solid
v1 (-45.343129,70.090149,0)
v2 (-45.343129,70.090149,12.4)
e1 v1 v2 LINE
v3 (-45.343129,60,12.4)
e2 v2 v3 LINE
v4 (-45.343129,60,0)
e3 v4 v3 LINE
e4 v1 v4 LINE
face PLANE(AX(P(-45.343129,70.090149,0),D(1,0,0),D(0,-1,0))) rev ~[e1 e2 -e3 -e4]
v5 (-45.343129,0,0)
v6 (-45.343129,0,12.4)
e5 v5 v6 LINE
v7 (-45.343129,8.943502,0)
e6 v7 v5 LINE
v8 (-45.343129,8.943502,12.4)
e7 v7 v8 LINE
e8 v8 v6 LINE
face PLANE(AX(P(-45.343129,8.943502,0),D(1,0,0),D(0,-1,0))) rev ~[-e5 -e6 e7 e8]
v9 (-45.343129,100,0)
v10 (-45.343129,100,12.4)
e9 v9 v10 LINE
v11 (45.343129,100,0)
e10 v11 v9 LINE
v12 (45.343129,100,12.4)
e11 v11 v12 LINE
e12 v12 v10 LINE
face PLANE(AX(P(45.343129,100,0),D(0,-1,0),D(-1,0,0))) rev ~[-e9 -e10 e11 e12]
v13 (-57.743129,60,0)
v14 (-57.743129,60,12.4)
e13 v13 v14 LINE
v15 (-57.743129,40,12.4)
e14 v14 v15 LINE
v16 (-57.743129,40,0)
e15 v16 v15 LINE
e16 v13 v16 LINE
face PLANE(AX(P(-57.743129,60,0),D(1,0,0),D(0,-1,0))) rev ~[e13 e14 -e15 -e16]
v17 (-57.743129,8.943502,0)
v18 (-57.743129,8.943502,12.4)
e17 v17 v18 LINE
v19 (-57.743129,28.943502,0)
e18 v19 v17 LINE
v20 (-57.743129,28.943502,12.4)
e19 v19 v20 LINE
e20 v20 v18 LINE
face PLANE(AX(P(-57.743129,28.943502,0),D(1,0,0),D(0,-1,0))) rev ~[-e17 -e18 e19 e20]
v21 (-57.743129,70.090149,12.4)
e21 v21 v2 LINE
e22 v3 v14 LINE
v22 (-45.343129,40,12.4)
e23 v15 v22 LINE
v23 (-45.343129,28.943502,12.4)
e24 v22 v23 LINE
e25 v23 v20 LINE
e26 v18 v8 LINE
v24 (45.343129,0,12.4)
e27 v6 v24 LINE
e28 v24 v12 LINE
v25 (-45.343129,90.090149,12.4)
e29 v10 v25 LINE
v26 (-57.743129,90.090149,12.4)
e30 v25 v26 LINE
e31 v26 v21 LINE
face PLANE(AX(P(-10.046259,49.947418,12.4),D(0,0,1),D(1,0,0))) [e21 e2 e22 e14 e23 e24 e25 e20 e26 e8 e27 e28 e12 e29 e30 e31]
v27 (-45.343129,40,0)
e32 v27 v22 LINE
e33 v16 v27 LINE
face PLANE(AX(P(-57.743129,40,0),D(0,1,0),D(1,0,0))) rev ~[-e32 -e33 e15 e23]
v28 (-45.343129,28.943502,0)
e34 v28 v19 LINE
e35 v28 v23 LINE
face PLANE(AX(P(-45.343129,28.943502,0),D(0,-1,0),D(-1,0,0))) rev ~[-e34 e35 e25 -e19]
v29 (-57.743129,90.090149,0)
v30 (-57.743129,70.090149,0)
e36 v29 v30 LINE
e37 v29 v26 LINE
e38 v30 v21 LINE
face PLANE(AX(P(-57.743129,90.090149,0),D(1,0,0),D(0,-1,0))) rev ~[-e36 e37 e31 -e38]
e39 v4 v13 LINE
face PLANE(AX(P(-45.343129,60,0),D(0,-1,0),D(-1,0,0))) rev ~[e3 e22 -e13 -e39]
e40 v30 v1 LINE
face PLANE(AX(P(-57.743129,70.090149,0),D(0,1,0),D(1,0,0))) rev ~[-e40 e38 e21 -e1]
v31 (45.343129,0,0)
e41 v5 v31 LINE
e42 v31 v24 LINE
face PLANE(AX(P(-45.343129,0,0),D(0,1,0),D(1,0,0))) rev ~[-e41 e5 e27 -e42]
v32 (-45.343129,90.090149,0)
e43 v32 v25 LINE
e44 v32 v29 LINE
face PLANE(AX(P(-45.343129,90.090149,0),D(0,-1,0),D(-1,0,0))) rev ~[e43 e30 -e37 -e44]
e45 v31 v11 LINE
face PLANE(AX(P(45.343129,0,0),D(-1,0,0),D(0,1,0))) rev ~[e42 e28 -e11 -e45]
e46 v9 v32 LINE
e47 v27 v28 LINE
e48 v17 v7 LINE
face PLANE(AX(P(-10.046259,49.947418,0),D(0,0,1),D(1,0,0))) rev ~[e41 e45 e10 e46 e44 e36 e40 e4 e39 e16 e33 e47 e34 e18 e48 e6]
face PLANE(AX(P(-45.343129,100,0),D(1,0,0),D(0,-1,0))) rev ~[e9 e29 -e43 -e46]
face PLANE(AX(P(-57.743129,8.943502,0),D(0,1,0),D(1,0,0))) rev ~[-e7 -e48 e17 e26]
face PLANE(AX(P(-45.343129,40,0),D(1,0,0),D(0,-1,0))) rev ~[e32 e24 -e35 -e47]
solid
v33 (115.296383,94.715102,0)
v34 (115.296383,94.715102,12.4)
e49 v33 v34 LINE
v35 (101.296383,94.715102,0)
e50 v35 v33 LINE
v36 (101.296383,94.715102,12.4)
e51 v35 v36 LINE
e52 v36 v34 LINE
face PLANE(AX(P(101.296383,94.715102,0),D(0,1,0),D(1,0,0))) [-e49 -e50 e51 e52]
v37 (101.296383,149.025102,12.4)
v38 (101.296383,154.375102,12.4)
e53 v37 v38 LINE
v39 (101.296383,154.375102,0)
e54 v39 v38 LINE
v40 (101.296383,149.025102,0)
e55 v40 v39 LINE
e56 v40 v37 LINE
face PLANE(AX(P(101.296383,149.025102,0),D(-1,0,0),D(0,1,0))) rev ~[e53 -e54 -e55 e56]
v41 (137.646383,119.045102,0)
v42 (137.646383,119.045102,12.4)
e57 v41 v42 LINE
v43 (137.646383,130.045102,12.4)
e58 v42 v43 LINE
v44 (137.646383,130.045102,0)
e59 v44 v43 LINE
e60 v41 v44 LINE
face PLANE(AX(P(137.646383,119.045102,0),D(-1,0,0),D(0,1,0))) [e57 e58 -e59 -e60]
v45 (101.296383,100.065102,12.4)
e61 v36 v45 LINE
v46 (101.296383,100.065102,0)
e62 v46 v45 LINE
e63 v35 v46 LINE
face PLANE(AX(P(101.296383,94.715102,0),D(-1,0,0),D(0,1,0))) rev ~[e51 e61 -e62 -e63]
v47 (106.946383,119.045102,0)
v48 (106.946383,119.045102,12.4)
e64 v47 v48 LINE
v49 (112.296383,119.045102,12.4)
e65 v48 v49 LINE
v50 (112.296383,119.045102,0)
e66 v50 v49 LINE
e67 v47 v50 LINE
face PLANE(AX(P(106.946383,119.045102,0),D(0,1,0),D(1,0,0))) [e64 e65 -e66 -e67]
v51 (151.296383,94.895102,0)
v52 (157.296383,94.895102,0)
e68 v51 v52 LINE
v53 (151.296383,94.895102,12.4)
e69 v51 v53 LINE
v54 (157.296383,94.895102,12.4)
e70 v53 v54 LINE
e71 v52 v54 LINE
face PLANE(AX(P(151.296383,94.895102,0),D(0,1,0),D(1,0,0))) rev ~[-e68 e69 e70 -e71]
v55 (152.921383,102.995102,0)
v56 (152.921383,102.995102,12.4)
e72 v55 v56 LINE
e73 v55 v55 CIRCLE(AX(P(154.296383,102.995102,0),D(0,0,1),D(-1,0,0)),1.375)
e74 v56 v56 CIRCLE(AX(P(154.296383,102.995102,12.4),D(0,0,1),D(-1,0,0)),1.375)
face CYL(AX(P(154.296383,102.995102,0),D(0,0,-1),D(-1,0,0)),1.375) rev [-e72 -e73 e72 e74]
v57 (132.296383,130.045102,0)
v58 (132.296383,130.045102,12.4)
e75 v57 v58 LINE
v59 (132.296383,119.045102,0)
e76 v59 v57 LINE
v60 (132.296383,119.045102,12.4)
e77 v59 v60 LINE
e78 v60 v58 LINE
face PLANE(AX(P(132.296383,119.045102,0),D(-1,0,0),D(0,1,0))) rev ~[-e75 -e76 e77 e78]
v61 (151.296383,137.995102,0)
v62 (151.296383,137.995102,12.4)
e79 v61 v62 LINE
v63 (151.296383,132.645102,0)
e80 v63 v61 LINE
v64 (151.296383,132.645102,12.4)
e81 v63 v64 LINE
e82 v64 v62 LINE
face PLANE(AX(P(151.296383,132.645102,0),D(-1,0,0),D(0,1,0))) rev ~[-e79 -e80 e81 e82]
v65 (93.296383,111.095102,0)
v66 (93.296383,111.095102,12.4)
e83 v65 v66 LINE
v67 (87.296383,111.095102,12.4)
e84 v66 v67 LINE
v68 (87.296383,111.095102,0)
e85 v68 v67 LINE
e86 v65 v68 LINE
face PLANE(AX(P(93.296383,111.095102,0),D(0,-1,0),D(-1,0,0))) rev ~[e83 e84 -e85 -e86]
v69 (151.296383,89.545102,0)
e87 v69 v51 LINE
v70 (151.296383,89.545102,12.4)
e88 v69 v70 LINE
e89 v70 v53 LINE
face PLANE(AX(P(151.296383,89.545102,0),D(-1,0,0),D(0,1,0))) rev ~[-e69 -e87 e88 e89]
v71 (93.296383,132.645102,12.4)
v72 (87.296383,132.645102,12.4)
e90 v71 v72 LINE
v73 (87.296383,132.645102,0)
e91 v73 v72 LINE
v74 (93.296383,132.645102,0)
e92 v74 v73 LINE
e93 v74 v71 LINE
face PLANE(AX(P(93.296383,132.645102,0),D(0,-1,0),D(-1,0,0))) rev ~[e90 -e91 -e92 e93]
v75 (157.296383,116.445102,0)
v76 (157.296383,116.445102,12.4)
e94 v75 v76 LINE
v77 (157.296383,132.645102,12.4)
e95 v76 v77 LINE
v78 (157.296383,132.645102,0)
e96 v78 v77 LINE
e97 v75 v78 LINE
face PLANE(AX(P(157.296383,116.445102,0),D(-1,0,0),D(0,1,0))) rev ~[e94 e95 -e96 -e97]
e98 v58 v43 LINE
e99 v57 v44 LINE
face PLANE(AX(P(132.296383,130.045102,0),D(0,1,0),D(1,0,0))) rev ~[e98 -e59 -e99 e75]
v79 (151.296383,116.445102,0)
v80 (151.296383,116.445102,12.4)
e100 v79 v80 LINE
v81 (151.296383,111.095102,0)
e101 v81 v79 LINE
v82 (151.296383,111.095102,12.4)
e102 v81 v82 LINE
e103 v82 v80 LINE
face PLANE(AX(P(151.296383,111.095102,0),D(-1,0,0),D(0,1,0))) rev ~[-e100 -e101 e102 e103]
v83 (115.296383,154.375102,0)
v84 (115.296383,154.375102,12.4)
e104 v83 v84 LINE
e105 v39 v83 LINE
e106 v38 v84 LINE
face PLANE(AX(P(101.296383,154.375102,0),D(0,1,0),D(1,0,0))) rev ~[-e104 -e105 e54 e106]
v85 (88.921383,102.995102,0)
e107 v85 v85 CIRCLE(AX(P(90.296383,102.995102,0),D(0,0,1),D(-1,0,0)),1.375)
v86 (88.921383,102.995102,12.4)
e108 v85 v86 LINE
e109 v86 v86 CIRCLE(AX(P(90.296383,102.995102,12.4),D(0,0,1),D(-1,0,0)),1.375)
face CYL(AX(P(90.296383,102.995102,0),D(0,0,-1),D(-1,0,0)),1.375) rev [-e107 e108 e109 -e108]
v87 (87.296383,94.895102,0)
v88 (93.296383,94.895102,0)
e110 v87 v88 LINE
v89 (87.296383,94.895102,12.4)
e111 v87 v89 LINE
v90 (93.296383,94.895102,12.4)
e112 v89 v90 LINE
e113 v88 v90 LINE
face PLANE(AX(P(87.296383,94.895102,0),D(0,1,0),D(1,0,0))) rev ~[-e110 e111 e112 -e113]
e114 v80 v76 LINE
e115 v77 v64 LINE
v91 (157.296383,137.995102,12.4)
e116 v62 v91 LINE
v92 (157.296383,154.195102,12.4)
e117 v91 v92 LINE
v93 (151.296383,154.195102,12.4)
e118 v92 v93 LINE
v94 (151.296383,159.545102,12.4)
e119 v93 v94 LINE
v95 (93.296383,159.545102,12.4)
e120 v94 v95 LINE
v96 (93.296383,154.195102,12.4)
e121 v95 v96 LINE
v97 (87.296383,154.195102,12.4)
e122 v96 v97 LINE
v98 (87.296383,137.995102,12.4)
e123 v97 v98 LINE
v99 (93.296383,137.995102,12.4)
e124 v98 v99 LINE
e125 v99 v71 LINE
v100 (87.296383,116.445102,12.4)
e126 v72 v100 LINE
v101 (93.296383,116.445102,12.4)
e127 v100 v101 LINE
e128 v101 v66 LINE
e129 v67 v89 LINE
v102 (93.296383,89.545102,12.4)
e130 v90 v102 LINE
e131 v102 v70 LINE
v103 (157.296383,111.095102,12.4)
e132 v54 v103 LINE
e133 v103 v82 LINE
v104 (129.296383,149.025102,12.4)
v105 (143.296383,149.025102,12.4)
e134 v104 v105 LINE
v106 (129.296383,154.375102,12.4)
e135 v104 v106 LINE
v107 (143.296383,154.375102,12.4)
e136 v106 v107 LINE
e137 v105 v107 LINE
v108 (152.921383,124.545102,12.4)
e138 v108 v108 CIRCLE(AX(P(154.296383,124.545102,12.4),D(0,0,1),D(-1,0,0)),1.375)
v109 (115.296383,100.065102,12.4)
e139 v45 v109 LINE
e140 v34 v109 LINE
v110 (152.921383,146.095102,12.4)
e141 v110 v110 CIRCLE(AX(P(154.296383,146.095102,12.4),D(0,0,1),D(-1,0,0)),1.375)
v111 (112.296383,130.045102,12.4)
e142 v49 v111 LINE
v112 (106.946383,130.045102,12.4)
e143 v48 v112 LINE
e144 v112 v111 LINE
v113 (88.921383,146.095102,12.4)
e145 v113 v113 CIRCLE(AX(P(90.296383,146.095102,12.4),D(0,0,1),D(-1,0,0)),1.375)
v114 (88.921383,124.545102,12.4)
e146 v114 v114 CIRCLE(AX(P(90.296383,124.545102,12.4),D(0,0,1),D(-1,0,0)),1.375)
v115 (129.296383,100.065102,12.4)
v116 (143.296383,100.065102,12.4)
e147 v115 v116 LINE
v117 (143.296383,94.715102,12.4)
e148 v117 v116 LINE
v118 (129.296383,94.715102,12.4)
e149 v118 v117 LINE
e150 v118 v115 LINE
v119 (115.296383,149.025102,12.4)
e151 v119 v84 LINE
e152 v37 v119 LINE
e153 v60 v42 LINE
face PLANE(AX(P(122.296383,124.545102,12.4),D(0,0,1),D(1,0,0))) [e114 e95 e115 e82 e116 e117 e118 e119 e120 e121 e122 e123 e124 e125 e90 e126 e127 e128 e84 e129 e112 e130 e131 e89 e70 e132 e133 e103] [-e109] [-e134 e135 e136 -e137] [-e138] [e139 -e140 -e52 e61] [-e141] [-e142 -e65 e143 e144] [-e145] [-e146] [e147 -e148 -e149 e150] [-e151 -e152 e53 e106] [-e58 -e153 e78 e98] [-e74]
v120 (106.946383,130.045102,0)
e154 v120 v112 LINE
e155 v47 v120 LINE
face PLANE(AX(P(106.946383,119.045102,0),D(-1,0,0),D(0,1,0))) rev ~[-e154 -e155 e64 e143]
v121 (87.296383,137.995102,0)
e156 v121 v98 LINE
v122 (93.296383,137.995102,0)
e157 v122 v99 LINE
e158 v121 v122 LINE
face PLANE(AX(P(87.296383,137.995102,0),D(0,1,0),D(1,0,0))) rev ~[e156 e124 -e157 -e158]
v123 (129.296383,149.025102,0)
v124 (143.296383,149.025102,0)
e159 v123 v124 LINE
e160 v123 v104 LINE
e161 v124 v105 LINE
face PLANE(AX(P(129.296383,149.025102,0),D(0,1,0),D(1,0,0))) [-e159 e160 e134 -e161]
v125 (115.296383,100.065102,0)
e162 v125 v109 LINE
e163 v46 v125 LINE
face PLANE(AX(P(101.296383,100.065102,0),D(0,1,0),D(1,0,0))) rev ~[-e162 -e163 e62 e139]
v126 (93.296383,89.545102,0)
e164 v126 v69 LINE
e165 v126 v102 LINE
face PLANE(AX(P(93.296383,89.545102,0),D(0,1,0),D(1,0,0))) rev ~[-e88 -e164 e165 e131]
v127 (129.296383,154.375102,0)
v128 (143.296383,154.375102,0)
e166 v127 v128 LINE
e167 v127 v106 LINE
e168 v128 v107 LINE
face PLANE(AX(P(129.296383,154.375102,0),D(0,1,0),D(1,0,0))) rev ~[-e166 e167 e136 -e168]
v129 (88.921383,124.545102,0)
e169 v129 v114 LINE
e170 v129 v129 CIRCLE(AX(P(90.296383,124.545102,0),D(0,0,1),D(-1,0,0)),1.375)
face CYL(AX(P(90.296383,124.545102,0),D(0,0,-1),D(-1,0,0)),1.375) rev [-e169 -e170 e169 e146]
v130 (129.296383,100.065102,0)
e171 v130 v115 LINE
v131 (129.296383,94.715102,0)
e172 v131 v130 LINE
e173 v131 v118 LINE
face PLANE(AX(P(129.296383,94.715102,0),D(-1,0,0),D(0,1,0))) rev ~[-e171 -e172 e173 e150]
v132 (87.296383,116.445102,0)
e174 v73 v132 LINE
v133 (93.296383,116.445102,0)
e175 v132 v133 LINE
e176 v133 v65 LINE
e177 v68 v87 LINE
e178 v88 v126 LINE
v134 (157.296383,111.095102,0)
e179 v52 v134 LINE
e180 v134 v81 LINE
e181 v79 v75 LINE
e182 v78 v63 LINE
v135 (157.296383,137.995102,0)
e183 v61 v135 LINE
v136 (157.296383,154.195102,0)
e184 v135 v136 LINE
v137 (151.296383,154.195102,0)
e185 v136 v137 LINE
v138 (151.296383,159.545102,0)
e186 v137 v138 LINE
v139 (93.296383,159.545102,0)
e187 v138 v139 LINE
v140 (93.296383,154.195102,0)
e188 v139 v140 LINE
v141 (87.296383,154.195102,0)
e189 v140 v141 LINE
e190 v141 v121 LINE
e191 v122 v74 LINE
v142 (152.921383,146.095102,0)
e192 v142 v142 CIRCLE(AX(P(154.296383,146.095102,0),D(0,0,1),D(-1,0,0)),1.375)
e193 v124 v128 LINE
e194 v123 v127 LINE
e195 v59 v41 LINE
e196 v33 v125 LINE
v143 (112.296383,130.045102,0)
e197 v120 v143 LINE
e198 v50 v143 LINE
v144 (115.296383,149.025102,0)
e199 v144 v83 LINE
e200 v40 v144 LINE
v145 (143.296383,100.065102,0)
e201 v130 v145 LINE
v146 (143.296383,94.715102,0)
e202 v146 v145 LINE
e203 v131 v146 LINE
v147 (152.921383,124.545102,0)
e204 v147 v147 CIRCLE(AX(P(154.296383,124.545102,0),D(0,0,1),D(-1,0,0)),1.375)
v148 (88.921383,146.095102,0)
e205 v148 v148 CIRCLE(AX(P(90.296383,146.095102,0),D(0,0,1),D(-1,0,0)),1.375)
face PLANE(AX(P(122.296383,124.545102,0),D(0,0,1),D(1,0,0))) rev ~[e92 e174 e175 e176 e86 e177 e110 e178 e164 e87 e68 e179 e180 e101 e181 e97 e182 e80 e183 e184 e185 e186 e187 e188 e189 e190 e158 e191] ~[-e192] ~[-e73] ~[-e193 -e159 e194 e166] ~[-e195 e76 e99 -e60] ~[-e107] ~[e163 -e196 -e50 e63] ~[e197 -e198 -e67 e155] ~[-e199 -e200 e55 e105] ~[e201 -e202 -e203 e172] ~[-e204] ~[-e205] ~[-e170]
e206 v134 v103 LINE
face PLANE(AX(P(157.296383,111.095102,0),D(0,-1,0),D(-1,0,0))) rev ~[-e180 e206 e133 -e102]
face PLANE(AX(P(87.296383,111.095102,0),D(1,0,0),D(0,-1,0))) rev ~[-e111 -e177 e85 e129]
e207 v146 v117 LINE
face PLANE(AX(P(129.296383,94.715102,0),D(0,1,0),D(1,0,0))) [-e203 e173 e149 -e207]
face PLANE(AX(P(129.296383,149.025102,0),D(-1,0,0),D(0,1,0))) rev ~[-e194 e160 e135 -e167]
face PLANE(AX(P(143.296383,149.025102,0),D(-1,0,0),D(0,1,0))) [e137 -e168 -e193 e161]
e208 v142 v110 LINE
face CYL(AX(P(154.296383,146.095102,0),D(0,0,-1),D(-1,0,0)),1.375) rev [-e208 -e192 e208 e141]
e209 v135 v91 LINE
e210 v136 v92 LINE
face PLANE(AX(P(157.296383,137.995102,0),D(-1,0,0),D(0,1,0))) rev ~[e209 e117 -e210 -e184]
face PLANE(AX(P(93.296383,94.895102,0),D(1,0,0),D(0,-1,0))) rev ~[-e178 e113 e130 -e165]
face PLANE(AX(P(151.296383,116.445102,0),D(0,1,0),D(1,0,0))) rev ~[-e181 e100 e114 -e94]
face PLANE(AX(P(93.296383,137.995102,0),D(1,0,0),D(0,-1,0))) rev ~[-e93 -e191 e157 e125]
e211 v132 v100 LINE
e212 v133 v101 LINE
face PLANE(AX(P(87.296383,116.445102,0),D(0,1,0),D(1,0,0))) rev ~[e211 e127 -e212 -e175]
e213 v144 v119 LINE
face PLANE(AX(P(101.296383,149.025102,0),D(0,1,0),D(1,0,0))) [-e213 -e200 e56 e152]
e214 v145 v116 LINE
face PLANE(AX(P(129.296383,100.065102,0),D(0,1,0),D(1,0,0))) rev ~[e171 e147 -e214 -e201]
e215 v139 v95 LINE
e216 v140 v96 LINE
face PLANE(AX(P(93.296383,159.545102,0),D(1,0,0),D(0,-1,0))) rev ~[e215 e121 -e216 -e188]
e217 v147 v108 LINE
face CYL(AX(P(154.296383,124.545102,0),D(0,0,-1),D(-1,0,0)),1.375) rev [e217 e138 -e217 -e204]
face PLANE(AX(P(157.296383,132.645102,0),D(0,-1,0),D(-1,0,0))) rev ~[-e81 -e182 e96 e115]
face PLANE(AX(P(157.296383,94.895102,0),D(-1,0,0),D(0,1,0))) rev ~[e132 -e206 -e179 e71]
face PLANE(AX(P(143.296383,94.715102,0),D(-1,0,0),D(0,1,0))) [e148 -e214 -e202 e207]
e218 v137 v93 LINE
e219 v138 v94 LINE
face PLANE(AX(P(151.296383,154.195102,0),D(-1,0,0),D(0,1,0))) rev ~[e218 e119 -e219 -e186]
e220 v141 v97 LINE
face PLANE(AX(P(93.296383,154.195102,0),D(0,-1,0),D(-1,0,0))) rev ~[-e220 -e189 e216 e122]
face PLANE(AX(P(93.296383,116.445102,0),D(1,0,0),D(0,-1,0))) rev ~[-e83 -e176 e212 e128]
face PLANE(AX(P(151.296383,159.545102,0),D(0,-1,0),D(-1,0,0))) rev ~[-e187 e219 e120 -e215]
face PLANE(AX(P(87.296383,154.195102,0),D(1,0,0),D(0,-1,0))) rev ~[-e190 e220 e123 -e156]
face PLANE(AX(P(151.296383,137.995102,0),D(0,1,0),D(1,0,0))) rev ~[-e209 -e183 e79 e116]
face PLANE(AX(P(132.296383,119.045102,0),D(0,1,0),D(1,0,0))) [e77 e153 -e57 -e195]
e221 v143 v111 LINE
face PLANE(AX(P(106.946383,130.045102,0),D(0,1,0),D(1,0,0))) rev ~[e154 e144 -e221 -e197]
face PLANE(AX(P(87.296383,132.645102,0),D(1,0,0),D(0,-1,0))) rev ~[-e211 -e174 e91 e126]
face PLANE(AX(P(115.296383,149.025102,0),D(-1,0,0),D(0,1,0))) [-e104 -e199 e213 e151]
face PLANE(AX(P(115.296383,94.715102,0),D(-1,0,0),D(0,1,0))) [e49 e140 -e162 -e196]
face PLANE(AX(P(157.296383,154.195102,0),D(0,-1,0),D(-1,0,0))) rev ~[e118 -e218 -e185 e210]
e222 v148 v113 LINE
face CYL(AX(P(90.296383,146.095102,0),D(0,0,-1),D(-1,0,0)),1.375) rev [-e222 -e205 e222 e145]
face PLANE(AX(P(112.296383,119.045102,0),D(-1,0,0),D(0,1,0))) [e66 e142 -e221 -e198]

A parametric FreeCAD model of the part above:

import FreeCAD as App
import Part
import Sketcher

doc = App.newDocument("Part")
params = doc.addObject("Spreadsheet::Sheet", "Params")
for row, (alias, value) in enumerate([
    ("sketch1_diameter", "2.75 mm"),
    ("sketch1_width", "58 mm"),
    ("sketch1_width2", "6 mm"),
    ("sketch1_width3", "14 mm"),
    ("sketch1_height", "11 mm"),
    ("pad1_length", "12.4 mm"),
    ("sketch2_height", "20 mm"),
    ("sketch2_height2", "100 mm"),
    ("sketch2_width", "12.4 mm"),
    ("pad2_length", "12.4 mm"),
], start=1):
    params.set(f"A{row}", alias)
    params.set(f"B{row}", "=" + value)
    params.setAlias(f"B{row}", alias)

body = doc.addObject("PartDesign::Body", "Body")

# Sketch on XY plane
sketch1 = doc.addObject("Sketcher::SketchObject", "Sketch")
body.addObject(sketch1)
sketch1.AttachmentSupport = (doc.XY_Plane, [""])
sketch1.MapMode = "FlatFace"
sketch1.addGeometry(Part.LineSegment(App.Vector(93.3, 89.5, 0), App.Vector(151.3, 89.5, 0)), False)
sketch1.addGeometry(Part.LineSegment(App.Vector(151.3, 89.5, 0), App.Vector(151.3, 94.9, 0)), False)
sketch1.addGeometry(Part.LineSegment(App.Vector(151.3, 94.9, 0), App.Vector(157.3, 94.9, 0)), False)
sketch1.addGeometry(Part.LineSegment(App.Vector(157.3, 94.9, 0), App.Vector(157.3, 111.1, 0)), False)
sketch1.addGeometry(Part.LineSegment(App.Vector(157.3, 111.1, 0), App.Vector(151.3, 111.1, 0)), False)
sketch1.addGeometry(Part.LineSegment(App.Vector(151.3, 111.1, 0), App.Vector(151.3, 116.4, 0)), False)
sketch1.addGeometry(Part.LineSegment(App.Vector(151.3, 116.4, 0), App.Vector(157.3, 116.4, 0)), False)
sketch1.addGeometry(Part.LineSegment(App.Vector(157.3, 116.4, 0), App.Vector(157.3, 132.6, 0)), False)
sketch1.addGeometry(Part.LineSegment(App.Vector(157.3, 132.6, 0), App.Vector(151.3, 132.6, 0)), False)
sketch1.addGeometry(Part.LineSegment(App.Vector(151.3, 132.6, 0), App.Vector(151.3, 138, 0)), False)
sketch1.addGeometry(Part.LineSegment(App.Vector(151.3, 138, 0), App.Vector(157.3, 138, 0)), False)
sketch1.addGeometry(Part.LineSegment(App.Vector(157.3, 138, 0), App.Vector(157.3, 154.2, 0)), False)
sketch1.addGeometry(Part.LineSegment(App.Vector(157.3, 154.2, 0), App.Vector(151.3, 154.2, 0)), False)
sketch1.addGeometry(Part.LineSegment(App.Vector(151.3, 154.2, 0), App.Vector(151.3, 159.5, 0)), False)
sketch1.addGeometry(Part.LineSegment(App.Vector(151.3, 159.5, 0), App.Vector(93.3, 159.5, 0)), False)
sketch1.addGeometry(Part.LineSegment(App.Vector(93.3, 159.5, 0), App.Vector(93.3, 154.2, 0)), False)
sketch1.addGeometry(Part.LineSegment(App.Vector(93.3, 154.2, 0), App.Vector(87.3, 154.2, 0)), False)
sketch1.addGeometry(Part.LineSegment(App.Vector(87.3, 154.2, 0), App.Vector(87.3, 138, 0)), False)
sketch1.addGeometry(Part.LineSegment(App.Vector(87.3, 138, 0), App.Vector(93.3, 138, 0)), False)
sketch1.addGeometry(Part.LineSegment(App.Vector(93.3, 138, 0), App.Vector(93.3, 132.6, 0)), False)
sketch1.addGeometry(Part.LineSegment(App.Vector(93.3, 132.6, 0), App.Vector(87.3, 132.6, 0)), False)
sketch1.addGeometry(Part.LineSegment(App.Vector(87.3, 132.6, 0), App.Vector(87.3, 116.4, 0)), False)
sketch1.addGeometry(Part.LineSegment(App.Vector(87.3, 116.4, 0), App.Vector(93.3, 116.4, 0)), False)
sketch1.addGeometry(Part.LineSegment(App.Vector(93.3, 116.4, 0), App.Vector(93.3, 111.1, 0)), False)
sketch1.addGeometry(Part.LineSegment(App.Vector(93.3, 111.1, 0), App.Vector(87.3, 111.1, 0)), False)
sketch1.addGeometry(Part.LineSegment(App.Vector(87.3, 111.1, 0), App.Vector(87.3, 94.9, 0)), False)
sketch1.addGeometry(Part.LineSegment(App.Vector(87.3, 94.9, 0), App.Vector(93.3, 94.9, 0)), False)
sketch1.addGeometry(Part.LineSegment(App.Vector(93.3, 94.9, 0), App.Vector(93.3, 89.5, 0)), False)
sketch1.addGeometry(Part.Circle(App.Vector(90.3, 103, 0), App.Vector(0, 0, 1), 1.4), False)
sketch1.addGeometry(Part.LineSegment(App.Vector(115.3, 94.7, 0), App.Vector(101.3, 94.7, 0)), False)
sketch1.addGeometry(Part.LineSegment(App.Vector(101.3, 94.7, 0), App.Vector(101.3, 100.1, 0)), False)
sketch1.addGeometry(Part.LineSegment(App.Vector(101.3, 100.1, 0), App.Vector(115.3, 100.1, 0)), False)
sketch1.addGeometry(Part.LineSegment(App.Vector(115.3, 100.1, 0), App.Vector(115.3, 94.7, 0)), False)
sketch1.addGeometry(Part.Circle(App.Vector(90.3, 124.5, 0), App.Vector(0, 0, 1), 1.4), False)
sketch1.addGeometry(Part.LineSegment(App.Vector(112.3, 119, 0), App.Vector(106.9, 119, 0)), False)
sketch1.addGeometry(Part.LineSegment(App.Vector(106.9, 119, 0), App.Vector(106.9, 130, 0)), False)
sketch1.addGeometry(Part.LineSegment(App.Vector(106.9, 130, 0), App.Vector(112.3, 130, 0)), False)
sketch1.addGeometry(Part.LineSegment(App.Vector(112.3, 130, 0), App.Vector(112.3, 119, 0)), False)
sketch1.addGeometry(Part.LineSegment(App.Vector(143.3, 94.7, 0), App.Vector(129.3, 94.7, 0)), False)
sketch1.addGeometry(Part.LineSegment(App.Vector(129.3, 94.7, 0), App.Vector(129.3, 100.1, 0)), False)
sketch1.addGeometry(Part.LineSegment(App.Vector(129.3, 100.1, 0), App.Vector(143.3, 100.1, 0)), False)
sketch1.addGeometry(Part.LineSegment(App.Vector(143.3, 100.1, 0), App.Vector(143.3, 94.7, 0)), False)
sketch1.addGeometry(Part.Circle(App.Vector(154.3, 103, 0), App.Vector(0, 0, 1), 1.4), False)
sketch1.addGeometry(Part.LineSegment(App.Vector(137.6, 119, 0), App.Vector(132.3, 119, 0)), False)
sketch1.addGeometry(Part.LineSegment(App.Vector(132.3, 119, 0), App.Vector(132.3, 130, 0)), False)
sketch1.addGeometry(Part.LineSegment(App.Vector(132.3, 130, 0), App.Vector(137.6, 130, 0)), False)
sketch1.addGeometry(Part.LineSegment(App.Vector(137.6, 130, 0), App.Vector(137.6, 119, 0)), False)
sketch1.addGeometry(Part.Circle(App.Vector(154.3, 124.5, 0), App.Vector(0, 0, 1), 1.4), False)
sketch1.addGeometry(Part.Circle(App.Vector(90.3, 146.1, 0), App.Vector(0, 0, 1), 1.4), False)
sketch1.addGeometry(Part.LineSegment(App.Vector(115.3, 149, 0), App.Vector(101.3, 149, 0)), False)
sketch1.addGeometry(Part.LineSegment(App.Vector(101.3, 149, 0), App.Vector(101.3, 154.4, 0)), False)
sketch1.addGeometry(Part.LineSegment(App.Vector(101.3, 154.4, 0), App.Vector(115.3, 154.4, 0)), False)
sketch1.addGeometry(Part.LineSegment(App.Vector(115.3, 154.4, 0), App.Vector(115.3, 149, 0)), False)
sketch1.addGeometry(Part.LineSegment(App.Vector(143.3, 149, 0), App.Vector(129.3, 149, 0)), False)
sketch1.addGeometry(Part.LineSegment(App.Vector(129.3, 149, 0), App.Vector(129.3, 154.4, 0)), False)
sketch1.addGeometry(Part.LineSegment(App.Vector(129.3, 154.4, 0), App.Vector(143.3, 154.4, 0)), False)
sketch1.addGeometry(Part.LineSegment(App.Vector(143.3, 154.4, 0), App.Vector(143.3, 149, 0)), False)
sketch1.addGeometry(Part.Circle(App.Vector(154.3, 146.1, 0), App.Vector(0, 0, 1), 1.4), False)
sketch1.addConstraint(Sketcher.Constraint("Coincident", 0, 2, 1, 1))
sketch1.addConstraint(Sketcher.Constraint("Coincident", 1, 2, 2, 1))
sketch1.addConstraint(Sketcher.Constraint("Coincident", 2, 2, 3, 1))
sketch1.addConstraint(Sketcher.Constraint("Coincident", 3, 2, 4, 1))
sketch1.addConstraint(Sketcher.Constraint("Coincident", 4, 2, 5, 1))
sketch1.addConstraint(Sketcher.Constraint("Coincident", 5, 2, 6, 1))
sketch1.addConstraint(Sketcher.Constraint("Coincident", 6, 2, 7, 1))
sketch1.addConstraint(Sketcher.Constraint("Coincident", 7, 2, 8, 1))
sketch1.addConstraint(Sketcher.Constraint("Coincident", 8, 2, 9, 1))
sketch1.addConstraint(Sketcher.Constraint("Coincident", 9, 2, 10, 1))
sketch1.addConstraint(Sketcher.Constraint("Coincident", 10, 2, 11, 1))
sketch1.addConstraint(Sketcher.Constraint("Coincident", 11, 2, 12, 1))
sketch1.addConstraint(Sketcher.Constraint("Coincident", 12, 2, 13, 1))
sketch1.addConstraint(Sketcher.Constraint("Coincident", 13, 2, 14, 1))
sketch1.addConstraint(Sketcher.Constraint("Coincident", 14, 2, 15, 1))
sketch1.addConstraint(Sketcher.Constraint("Coincident", 15, 2, 16, 1))
sketch1.addConstraint(Sketcher.Constraint("Coincident", 16, 2, 17, 1))
sketch1.addConstraint(Sketcher.Constraint("Coincident", 17, 2, 18, 1))
sketch1.addConstraint(Sketcher.Constraint("Coincident", 18, 2, 19, 1))
sketch1.addConstraint(Sketcher.Constraint("Coincident", 19, 2, 20, 1))
sketch1.addConstraint(Sketcher.Constraint("Coincident", 20, 2, 21, 1))
sketch1.addConstraint(Sketcher.Constraint("Coincident", 21, 2, 22, 1))
sketch1.addConstraint(Sketcher.Constraint("Coincident", 22, 2, 23, 1))
sketch1.addConstraint(Sketcher.Constraint("Coincident", 23, 2, 24, 1))
sketch1.addConstraint(Sketcher.Constraint("Coincident", 24, 2, 25, 1))
sketch1.addConstraint(Sketcher.Constraint("Coincident", 25, 2, 26, 1))
sketch1.addConstraint(Sketcher.Constraint("Coincident", 26, 2, 27, 1))
sketch1.addConstraint(Sketcher.Constraint("Coincident", 27, 2, 0, 1))
sketch1.addConstraint(Sketcher.Constraint("Coincident", 29, 2, 30, 1))
sketch1.addConstraint(Sketcher.Constraint("Coincident", 30, 2, 31, 1))
sketch1.addConstraint(Sketcher.Constraint("Coincident", 31, 2, 32, 1))
sketch1.addConstraint(Sketcher.Constraint("Coincident", 32, 2, 29, 1))
sketch1.addConstraint(Sketcher.Constraint("Coincident", 34, 2, 35, 1))
sketch1.addConstraint(Sketcher.Constraint("Coincident", 35, 2, 36, 1))
sketch1.addConstraint(Sketcher.Constraint("Coincident", 36, 2, 37, 1))
sketch1.addConstraint(Sketcher.Constraint("Coincident", 37, 2, 34, 1))
sketch1.addConstraint(Sketcher.Constraint("Coincident", 38, 2, 39, 1))
sketch1.addConstraint(Sketcher.Constraint("Coincident", 39, 2, 40, 1))
sketch1.addConstraint(Sketcher.Constraint("Coincident", 40, 2, 41, 1))
sketch1.addConstraint(Sketcher.Constraint("Coincident", 41, 2, 38, 1))
sketch1.addConstraint(Sketcher.Constraint("Coincident", 43, 2, 44, 1))
sketch1.addConstraint(Sketcher.Constraint("Coincident", 44, 2, 45, 1))
sketch1.addConstraint(Sketcher.Constraint("Coincident", 45, 2, 46, 1))
sketch1.addConstraint(Sketcher.Constraint("Coincident", 46, 2, 43, 1))
sketch1.addConstraint(Sketcher.Constraint("Coincident", 49, 2, 50, 1))
sketch1.addConstraint(Sketcher.Constraint("Coincident", 50, 2, 51, 1))
sketch1.addConstraint(Sketcher.Constraint("Coincident", 51, 2, 52, 1))
sketch1.addConstraint(Sketcher.Constraint("Coincident", 52, 2, 49, 1))
sketch1.addConstraint(Sketcher.Constraint("Coincident", 53, 2, 54, 1))
sketch1.addConstraint(Sketcher.Constraint("Coincident", 54, 2, 55, 1))
sketch1.addConstraint(Sketcher.Constraint("Coincident", 55, 2, 56, 1))
sketch1.addConstraint(Sketcher.Constraint("Coincident", 56, 2, 53, 1))
sketch1.addConstraint(Sketcher.Constraint("Horizontal", 0))
sketch1.addConstraint(Sketcher.Constraint("Vertical", 1))
sketch1.addConstraint(Sketcher.Constraint("Horizontal", 2))
sketch1.addConstraint(Sketcher.Constraint("Vertical", 3))
sketch1.addConstraint(Sketcher.Constraint("Horizontal", 4))
sketch1.addConstraint(Sketcher.Constraint("Vertical", 5))
sketch1.addConstraint(Sketcher.Constraint("Horizontal", 6))
sketch1.addConstraint(Sketcher.Constraint("Vertical", 7))
sketch1.addConstraint(Sketcher.Constraint("Horizontal", 8))
sketch1.addConstraint(Sketcher.Constraint("Vertical", 9))
sketch1.addConstraint(Sketcher.Constraint("Horizontal", 10))
sketch1.addConstraint(Sketcher.Constraint("Vertical", 11))
sketch1.addConstraint(Sketcher.Constraint("Horizontal", 12))
sketch1.addConstraint(Sketcher.Constraint("Vertical", 13))
sketch1.addConstraint(Sketcher.Constraint("Horizontal", 14))
sketch1.addConstraint(Sketcher.Constraint("Vertical", 15))
sketch1.addConstraint(Sketcher.Constraint("Horizontal", 16))
sketch1.addConstraint(Sketcher.Constraint("Vertical", 17))
sketch1.addConstraint(Sketcher.Constraint("Horizontal", 18))
sketch1.addConstraint(Sketcher.Constraint("Vertical", 19))
sketch1.addConstraint(Sketcher.Constraint("Horizontal", 20))
sketch1.addConstraint(Sketcher.Constraint("Vertical", 21))
sketch1.addConstraint(Sketcher.Constraint("Horizontal", 22))
sketch1.addConstraint(Sketcher.Constraint("Vertical", 23))
sketch1.addConstraint(Sketcher.Constraint("Horizontal", 24))
sketch1.addConstraint(Sketcher.Constraint("Vertical", 25))
sketch1.addConstraint(Sketcher.Constraint("Horizontal", 26))
sketch1.addConstraint(Sketcher.Constraint("Vertical", 27))
sketch1.addConstraint(Sketcher.Constraint("Horizontal", 29))
sketch1.addConstraint(Sketcher.Constraint("Vertical", 30))
sketch1.addConstraint(Sketcher.Constraint("Horizontal", 31))
sketch1.addConstraint(Sketcher.Constraint("Vertical", 32))
sketch1.addConstraint(Sketcher.Constraint("Horizontal", 34))
sketch1.addConstraint(Sketcher.Constraint("Vertical", 35))
sketch1.addConstraint(Sketcher.Constraint("Horizontal", 36))
sketch1.addConstraint(Sketcher.Constraint("Vertical", 37))
sketch1.addConstraint(Sketcher.Constraint("Horizontal", 38))
sketch1.addConstraint(Sketcher.Constraint("Vertical", 39))
sketch1.addConstraint(Sketcher.Constraint("Horizontal", 40))
sketch1.addConstraint(Sketcher.Constraint("Vertical", 41))
sketch1.addConstraint(Sketcher.Constraint("Horizontal", 43))
sketch1.addConstraint(Sketcher.Constraint("Vertical", 44))
sketch1.addConstraint(Sketcher.Constraint("Horizontal", 45))
sketch1.addConstraint(Sketcher.Constraint("Vertical", 46))
sketch1.addConstraint(Sketcher.Constraint("Horizontal", 49))
sketch1.addConstraint(Sketcher.Constraint("Vertical", 50))
sketch1.addConstraint(Sketcher.Constraint("Horizontal", 51))
sketch1.addConstraint(Sketcher.Constraint("Vertical", 52))
sketch1.addConstraint(Sketcher.Constraint("Horizontal", 53))
sketch1.addConstraint(Sketcher.Constraint("Vertical", 54))
sketch1.addConstraint(Sketcher.Constraint("Horizontal", 55))
sketch1.addConstraint(Sketcher.Constraint("Vertical", 56))
sketch1.addConstraint(Sketcher.Constraint("Equal", 28, 33))
sketch1.addConstraint(Sketcher.Constraint("Equal", 33, 42))
sketch1.addConstraint(Sketcher.Constraint("Equal", 42, 47))
sketch1.addConstraint(Sketcher.Constraint("Equal", 47, 48))
sketch1.addConstraint(Sketcher.Constraint("Equal", 48, 57))
sketch1.addConstraint(Sketcher.Constraint("Horizontal", 28, 3, 42, 3))
sketch1.addConstraint(Sketcher.Constraint("Horizontal", 33, 3, 47, 3))
sketch1.addConstraint(Sketcher.Constraint("Horizontal", 48, 3, 57, 3))
sketch1.addConstraint(Sketcher.Constraint("Horizontal", 12, 2, 15, 2))
sketch1.addConstraint(Sketcher.Constraint("Horizontal", 10, 2, 17, 2))
sketch1.addConstraint(Sketcher.Constraint("Horizontal", 8, 2, 19, 2))
sketch1.addConstraint(Sketcher.Constraint("Horizontal", 6, 2, 21, 2))
sketch1.addConstraint(Sketcher.Constraint("Horizontal", 4, 2, 23, 2))
sketch1.addConstraint(Sketcher.Constraint("Horizontal", 2, 2, 25, 2))
sketch1.addConstraint(Sketcher.Constraint("Horizontal", 32, 2, 38, 2))
sketch1.addConstraint(Sketcher.Constraint("Horizontal", 31, 2, 39, 2))
sketch1.addConstraint(Sketcher.Constraint("Horizontal", 37, 2, 43, 2))
sketch1.addConstraint(Sketcher.Constraint("Horizontal", 36, 2, 44, 2))
sketch1.addConstraint(Sketcher.Constraint("Horizontal", 52, 2, 53, 2))
sketch1.addConstraint(Sketcher.Constraint("Horizontal", 51, 2, 54, 2))
sketch1.addConstraint(Sketcher.Constraint("Vertical", 28, 3, 33, 3))
sketch1.addConstraint(Sketcher.Constraint("Vertical", 42, 3, 47, 3))
sketch1.addConstraint(Sketcher.Constraint("Vertical", 33, 3, 48, 3))
sketch1.addConstraint(Sketcher.Constraint("Vertical", 47, 3, 57, 3))
sketch1.addConstraint(Sketcher.Constraint("Vertical", 1, 2, 4, 2))
sketch1.addConstraint(Sketcher.Constraint("Vertical", 3, 2, 6, 2))
sketch1.addConstraint(Sketcher.Constraint("Vertical", 5, 2, 8, 2))
sketch1.addConstraint(Sketcher.Constraint("Vertical", 7, 2, 10, 2))
sketch1.addConstraint(Sketcher.Constraint("Vertical", 9, 2, 12, 2))
sketch1.addConstraint(Sketcher.Constraint("Vertical", 15, 2, 18, 2))
sketch1.addConstraint(Sketcher.Constraint("Vertical", 17, 2, 20, 2))
sketch1.addConstraint(Sketcher.Constraint("Vertical", 19, 2, 22, 2))
sketch1.addConstraint(Sketcher.Constraint("Vertical", 21, 2, 24, 2))
sketch1.addConstraint(Sketcher.Constraint("Vertical", 23, 2, 26, 2))
sketch1.addConstraint(Sketcher.Constraint("Vertical", 30, 2, 49, 2))
sketch1.addConstraint(Sketcher.Constraint("Vertical", 32, 2, 51, 2))
sketch1.addConstraint(Sketcher.Constraint("Vertical", 39, 2, 53, 2))
sketch1.addConstraint(Sketcher.Constraint("Vertical", 41, 2, 55, 2))
sketch1.addConstraint(Sketcher.Constraint("Equal", 12, 16))
sketch1.addConstraint(Sketcher.Constraint("Equal", 31, 38))
sketch1.addConstraint(Sketcher.Constraint("Equal", 36, 43))
sketch1.addConstraint(Sketcher.Constraint("Equal", 45, 1))
sketch1.addConstraint(Sketcher.Constraint("Equal", 1, 5))
sketch1.addConstraint(Sketcher.Constraint("Equal", 3, 7))
sketch1.addConstraint(Sketcher.Constraint("Equal", 5, 9))
sketch1.addConstraint(Sketcher.Constraint("Equal", 7, 11))
sketch1.addConstraint(Sketcher.Constraint("Equal", 9, 13))
sketch1.addConstraint(Sketcher.Constraint("Equal", 27, 30))
sketch1.addConstraint(Sketcher.Constraint("Equal", 41, 50))
sketch1.addConstraint(Sketcher.Constraint("Diameter", 28, 2.75))
sketch1.addConstraint(Sketcher.Constraint("DistanceX", 0, 1, 0, 2, 58.0))
sketch1.addConstraint(Sketcher.Constraint("DistanceX", 2, 1, 2, 2, 6.0))
sketch1.addConstraint(Sketcher.Constraint("DistanceX", 29, 2, 29, 1, 14.0))
sketch1.addConstraint(Sketcher.Constraint("DistanceY", 35, 1, 35, 2, 11.0))
sketch1.addConstraint(Sketcher.Constraint("DistanceY", 3, 1, 3, 2, 16.2))
sketch1.addConstraint(Sketcher.Constraint("DistanceX", 28, 3, 42, 3, 64.0))
sketch1.addConstraint(Sketcher.Constraint("DistanceX", 0, 2, 42, 3, 3.0))
sketch1.addConstraint(Sketcher.Constraint("DistanceY", 0, 2, 47, 3, 35.0))
sketch1.addConstraint(Sketcher.Constraint("DistanceY", 33, 3, 14, 2, 35.0))
sketch1.addConstraint(Sketcher.Constraint("DistanceX", 26, 2, 29, 2, 8.0))
sketch1.addConstraint(Sketcher.Constraint("DistanceX", 19, 2, 36, 2, 19.0))
sketch1.addConstraint(Sketcher.Constraint("DistanceX", 32, 2, 38, 2, 14.0))
sketch1.addConstraint(Sketcher.Constraint("DistanceX", 43, 2, 5, 2, 19.0))
sketch1.addConstraint(Sketcher.Constraint("DistanceY", 28, 3, 48, 3, 43.1))
sketch1.addConstraint(Sketcher.Constraint("DistanceY", 1, 2, 42, 3, 8.1))
sketch1.addConstraint(Sketcher.Constraint("DistanceY", 22, 2, 34, 2, 2.6))
sketch1.addConstraint(Sketcher.Constraint("DistanceY", 29, 2, 26, 2, 0.18))
sketch1.addConstraint(Sketcher.Constraint("DistanceY", 49, 2, 15, 2, 5.17))
sketch1.addConstraint(Sketcher.Constraint("DistanceY", -1, 1, 28, 3, 102.995102))
sketch1.addConstraint(Sketcher.Constraint("DistanceX", -1, 1, 28, 3, 90.296383))
sketch1.setExpression("Constraints[153]", "Params.sketch1_diameter")
sketch1.setExpression("Constraints[154]", "Params.sketch1_width")
sketch1.setExpression("Constraints[155]", "Params.sketch1_width2")
sketch1.setExpression("Constraints[156]", "Params.sketch1_width3")
sketch1.setExpression("Constraints[157]", "Params.sketch1_height")
pad1 = doc.addObject("PartDesign::Pad", "Pad")
body.addObject(pad1)
pad1.Profile = sketch1
pad1.setExpression("Length", "Params.pad1_length")
body2 = doc.addObject("PartDesign::Body", "Body001")

# Sketch on XY plane
sketch2 = doc.addObject("Sketcher::SketchObject", "Sketch001")
body2.addObject(sketch2)
sketch2.AttachmentSupport = (doc.getObject("XY_Plane001"), [""])
sketch2.MapMode = "FlatFace"
sketch2.addGeometry(Part.LineSegment(App.Vector(-45, 90, 0), App.Vector(-58, 90, 0)), False)
sketch2.addGeometry(Part.LineSegment(App.Vector(-58, 90, 0), App.Vector(-58, 70, 0)), False)
sketch2.addGeometry(Part.LineSegment(App.Vector(-58, 70, 0), App.Vector(-45, 70, 0)), False)
sketch2.addGeometry(Part.LineSegment(App.Vector(-45, 70, 0), App.Vector(-45, 60, 0)), False)
sketch2.addGeometry(Part.LineSegment(App.Vector(-45, 60, 0), App.Vector(-58, 60, 0)), False)
sketch2.addGeometry(Part.LineSegment(App.Vector(-58, 60, 0), App.Vector(-58, 40, 0)), False)
sketch2.addGeometry(Part.LineSegment(App.Vector(-58, 40, 0), App.Vector(-45, 40, 0)), False)
sketch2.addGeometry(Part.LineSegment(App.Vector(-45, 40, 0), App.Vector(-45, 29, 0)), False)
sketch2.addGeometry(Part.LineSegment(App.Vector(-45, 29, 0), App.Vector(-58, 29, 0)), False)
sketch2.addGeometry(Part.LineSegment(App.Vector(-58, 29, 0), App.Vector(-58, 9, 0)), False)
sketch2.addGeometry(Part.LineSegment(App.Vector(-58, 9, 0), App.Vector(-45, 9, 0)), False)
sketch2.addGeometry(Part.LineSegment(App.Vector(-45, 9, 0), App.Vector(-45, 0, 0)), False)
sketch2.addGeometry(Part.LineSegment(App.Vector(-45, 0, 0), App.Vector(45, 0, 0)), False)
sketch2.addGeometry(Part.LineSegment(App.Vector(45, 0, 0), App.Vector(45, 100, 0)), False)
sketch2.addGeometry(Part.LineSegment(App.Vector(45, 100, 0), App.Vector(-45, 100, 0)), False)
sketch2.addGeometry(Part.LineSegment(App.Vector(-45, 100, 0), App.Vector(-45, 90, 0)), False)
sketch2.addConstraint(Sketcher.Constraint("Coincident", 0, 2, 1, 1))
sketch2.addConstraint(Sketcher.Constraint("Coincident", 1, 2, 2, 1))
sketch2.addConstraint(Sketcher.Constraint("Coincident", 2, 2, 3, 1))
sketch2.addConstraint(Sketcher.Constraint("Coincident", 3, 2, 4, 1))
sketch2.addConstraint(Sketcher.Constraint("Coincident", 4, 2, 5, 1))
sketch2.addConstraint(Sketcher.Constraint("Coincident", 5, 2, 6, 1))
sketch2.addConstraint(Sketcher.Constraint("Coincident", 6, 2, 7, 1))
sketch2.addConstraint(Sketcher.Constraint("Coincident", 7, 2, 8, 1))
sketch2.addConstraint(Sketcher.Constraint("Coincident", 8, 2, 9, 1))
sketch2.addConstraint(Sketcher.Constraint("Coincident", 9, 2, 10, 1))
sketch2.addConstraint(Sketcher.Constraint("Coincident", 10, 2, 11, 1))
sketch2.addConstraint(Sketcher.Constraint("Coincident", 11, 2, 12, 1))
sketch2.addConstraint(Sketcher.Constraint("Coincident", 12, 2, 13, 1))
sketch2.addConstraint(Sketcher.Constraint("Coincident", 13, 2, 14, 1))
sketch2.addConstraint(Sketcher.Constraint("Coincident", 14, 2, 15, 1))
sketch2.addConstraint(Sketcher.Constraint("Coincident", 15, 2, 0, 1))
sketch2.addConstraint(Sketcher.Constraint("Horizontal", 0))
sketch2.addConstraint(Sketcher.Constraint("Vertical", 1))
sketch2.addConstraint(Sketcher.Constraint("Horizontal", 2))
sketch2.addConstraint(Sketcher.Constraint("Vertical", 3))
sketch2.addConstraint(Sketcher.Constraint("Horizontal", 4))
sketch2.addConstraint(Sketcher.Constraint("Vertical", 5))
sketch2.addConstraint(Sketcher.Constraint("Horizontal", 6))
sketch2.addConstraint(Sketcher.Constraint("Vertical", 7))
sketch2.addConstraint(Sketcher.Constraint("Horizontal", 8))
sketch2.addConstraint(Sketcher.Constraint("Vertical", 9))
sketch2.addConstraint(Sketcher.Constraint("Horizontal", 10))
sketch2.addConstraint(Sketcher.Constraint("Vertical", 11))
sketch2.addConstraint(Sketcher.Constraint("Horizontal", 12))
sketch2.addConstraint(Sketcher.Constraint("Vertical", 13))
sketch2.addConstraint(Sketcher.Constraint("Horizontal", 14))
sketch2.addConstraint(Sketcher.Constraint("Vertical", 15))
sketch2.addConstraint(Sketcher.Constraint("Symmetric", 11, 2, 12, 2, -1, 1))
sketch2.addConstraint(Sketcher.Constraint("Vertical", 1, 2, 4, 2))
sketch2.addConstraint(Sketcher.Constraint("Vertical", 3, 2, 6, 2))
sketch2.addConstraint(Sketcher.Constraint("Vertical", 5, 2, 8, 2))
sketch2.addConstraint(Sketcher.Constraint("Vertical", 7, 2, 10, 2))
sketch2.addConstraint(Sketcher.Constraint("Vertical", 11, 2, 14, 2))
sketch2.addConstraint(Sketcher.Constraint("Equal", 1, 5))
sketch2.addConstraint(Sketcher.Constraint("Equal", 5, 9))
sketch2.addConstraint(Sketcher.Constraint("DistanceY", 1, 2, 1, 1, 20.0))
sketch2.addConstraint(Sketcher.Constraint("DistanceY", 13, 1, 13, 2, 100.0))
sketch2.addConstraint(Sketcher.Constraint("DistanceX", 0, 2, 0, 1, 12.4))
sketch2.addConstraint(Sketcher.Constraint("DistanceY", -1, 1, 3, 2, 60.0))
sketch2.addConstraint(Sketcher.Constraint("DistanceY", 7, 2, 7, 1, 11.056498))
sketch2.addConstraint(Sketcher.Constraint("DistanceY", 3, 2, 3, 1, 10.090149))
sketch2.addConstraint(Sketcher.Constraint("DistanceX", 12, 1, 12, 2, 90.686257))
sketch2.setExpression("Constraints[40]", "Params.sketch2_height")
sketch2.setExpression("Constraints[41]", "Params.sketch2_height2")
sketch2.setExpression("Constraints[42]", "Params.sketch2_width")
pad2 = doc.addObject("PartDesign::Pad", "Pad001")
body2.addObject(pad2)
pad2.Profile = sketch2
pad2.setExpression("Length", "Params.pad2_length")

doc.recompute()
